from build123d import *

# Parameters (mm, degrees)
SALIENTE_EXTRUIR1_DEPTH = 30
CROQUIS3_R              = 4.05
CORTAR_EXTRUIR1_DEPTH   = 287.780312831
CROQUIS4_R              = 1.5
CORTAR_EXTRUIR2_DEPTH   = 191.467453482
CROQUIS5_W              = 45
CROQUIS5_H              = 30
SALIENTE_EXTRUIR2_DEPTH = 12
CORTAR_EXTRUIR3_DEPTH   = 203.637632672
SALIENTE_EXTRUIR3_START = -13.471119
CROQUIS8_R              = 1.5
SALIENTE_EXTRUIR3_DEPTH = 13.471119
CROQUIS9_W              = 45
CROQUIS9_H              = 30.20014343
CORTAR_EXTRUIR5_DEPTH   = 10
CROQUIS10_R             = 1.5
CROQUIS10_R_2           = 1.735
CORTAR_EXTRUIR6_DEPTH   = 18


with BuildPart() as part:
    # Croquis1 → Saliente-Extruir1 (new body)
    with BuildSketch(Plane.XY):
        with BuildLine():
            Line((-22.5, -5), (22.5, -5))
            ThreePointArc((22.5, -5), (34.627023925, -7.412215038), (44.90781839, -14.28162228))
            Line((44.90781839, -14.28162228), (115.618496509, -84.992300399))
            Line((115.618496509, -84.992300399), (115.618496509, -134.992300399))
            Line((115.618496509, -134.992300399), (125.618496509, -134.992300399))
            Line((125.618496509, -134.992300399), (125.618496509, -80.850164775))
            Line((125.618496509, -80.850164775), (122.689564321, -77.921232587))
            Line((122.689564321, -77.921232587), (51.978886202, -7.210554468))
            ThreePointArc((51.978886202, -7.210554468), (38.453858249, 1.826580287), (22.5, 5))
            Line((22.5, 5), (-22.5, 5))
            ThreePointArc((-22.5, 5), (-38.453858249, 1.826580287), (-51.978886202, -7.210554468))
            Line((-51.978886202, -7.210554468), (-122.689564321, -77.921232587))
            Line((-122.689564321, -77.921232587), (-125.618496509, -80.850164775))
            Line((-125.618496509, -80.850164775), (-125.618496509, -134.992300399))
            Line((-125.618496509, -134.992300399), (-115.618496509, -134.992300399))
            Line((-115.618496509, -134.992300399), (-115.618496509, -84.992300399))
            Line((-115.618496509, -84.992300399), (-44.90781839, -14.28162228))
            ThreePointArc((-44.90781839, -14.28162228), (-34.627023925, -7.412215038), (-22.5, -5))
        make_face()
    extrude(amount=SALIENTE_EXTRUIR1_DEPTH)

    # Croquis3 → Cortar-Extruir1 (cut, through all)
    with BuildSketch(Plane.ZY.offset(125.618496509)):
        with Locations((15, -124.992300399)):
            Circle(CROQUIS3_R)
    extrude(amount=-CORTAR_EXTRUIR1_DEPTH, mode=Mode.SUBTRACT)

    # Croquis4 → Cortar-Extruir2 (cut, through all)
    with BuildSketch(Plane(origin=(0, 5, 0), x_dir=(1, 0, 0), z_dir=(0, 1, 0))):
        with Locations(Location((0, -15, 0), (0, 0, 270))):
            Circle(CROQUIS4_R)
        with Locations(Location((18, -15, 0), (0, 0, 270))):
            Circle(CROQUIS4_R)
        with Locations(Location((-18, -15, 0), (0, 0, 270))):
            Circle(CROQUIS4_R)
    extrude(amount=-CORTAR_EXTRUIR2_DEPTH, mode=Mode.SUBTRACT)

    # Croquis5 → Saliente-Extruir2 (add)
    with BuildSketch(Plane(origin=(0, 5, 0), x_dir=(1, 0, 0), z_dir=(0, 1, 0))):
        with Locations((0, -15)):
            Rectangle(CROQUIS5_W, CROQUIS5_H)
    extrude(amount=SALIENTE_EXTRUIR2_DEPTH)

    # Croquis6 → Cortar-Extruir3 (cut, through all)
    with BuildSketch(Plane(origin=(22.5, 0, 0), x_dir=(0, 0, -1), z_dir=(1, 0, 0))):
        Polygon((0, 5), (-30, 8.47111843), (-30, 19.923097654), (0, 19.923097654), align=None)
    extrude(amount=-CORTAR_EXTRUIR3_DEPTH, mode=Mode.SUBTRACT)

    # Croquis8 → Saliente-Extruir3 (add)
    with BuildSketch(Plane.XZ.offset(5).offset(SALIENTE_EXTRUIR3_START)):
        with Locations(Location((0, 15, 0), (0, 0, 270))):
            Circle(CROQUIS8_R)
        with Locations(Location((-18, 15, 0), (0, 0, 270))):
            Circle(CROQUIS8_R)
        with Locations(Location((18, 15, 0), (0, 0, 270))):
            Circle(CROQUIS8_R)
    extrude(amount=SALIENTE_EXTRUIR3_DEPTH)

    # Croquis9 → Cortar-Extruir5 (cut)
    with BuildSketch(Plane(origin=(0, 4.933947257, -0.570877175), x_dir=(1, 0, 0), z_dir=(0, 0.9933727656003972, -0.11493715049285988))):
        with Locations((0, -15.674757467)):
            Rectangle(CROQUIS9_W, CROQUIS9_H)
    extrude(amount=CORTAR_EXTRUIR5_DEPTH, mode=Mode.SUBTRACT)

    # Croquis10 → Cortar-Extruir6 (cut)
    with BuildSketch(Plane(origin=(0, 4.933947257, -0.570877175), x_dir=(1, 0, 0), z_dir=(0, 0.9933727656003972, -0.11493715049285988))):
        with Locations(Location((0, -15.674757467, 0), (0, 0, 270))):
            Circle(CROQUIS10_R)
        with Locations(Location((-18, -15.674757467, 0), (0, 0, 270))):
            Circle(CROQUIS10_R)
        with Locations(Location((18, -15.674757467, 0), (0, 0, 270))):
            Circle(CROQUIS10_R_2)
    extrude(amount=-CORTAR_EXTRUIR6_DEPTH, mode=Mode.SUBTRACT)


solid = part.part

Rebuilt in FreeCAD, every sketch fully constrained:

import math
import FreeCAD as App
import Part
import Sketcher
Q = App.Units.Quantity

doc = App.newDocument("Part")
body = doc.addObject("PartDesign::Body", "Body")

# Sketch on XY plane
sketch1 = body.newObject("Sketcher::SketchObject", "Sketch")
sketch1.AttachmentSupport = (doc.getObject("XY_Plane"), [""])
sketch1.MapMode = "FlatFace"
sketch1.addGeometry([
    Part.LineSegment(App.Vector(-22, -5, 0), App.Vector(22, -5, 0)),  # 0
    Part.ArcOfCircle(Part.Circle(App.Vector(22, -37, 0), App.Vector(0, 0, 1), 32), math.radians(45), math.radians(90)),  # 1
    Part.LineSegment(App.Vector(45, -14, 0), App.Vector(116, -85, 0)),  # 2
    Part.LineSegment(App.Vector(116, -85, 0), App.Vector(116, -135, 0)),  # 3
    Part.LineSegment(App.Vector(116, -135, 0), App.Vector(126, -135, 0)),  # 4
    Part.LineSegment(App.Vector(126, -135, 0), App.Vector(126, -81, 0)),  # 5
    Part.LineSegment(App.Vector(126, -81, 0), App.Vector(52, -7, 0)),  # 6
    Part.ArcOfCircle(Part.Circle(App.Vector(22, -37, 0), App.Vector(0, 0, 1), 42), math.radians(45), math.radians(90)),  # 7
    Part.LineSegment(App.Vector(22, 5, 0), App.Vector(-22, 5, 0)),  # 8
    Part.ArcOfCircle(Part.Circle(App.Vector(-22, -37, 0), App.Vector(0, 0, 1), 42), math.radians(90), math.radians(135)),  # 9
    Part.LineSegment(App.Vector(-52, -7, 0), App.Vector(-126, -81, 0)),  # 10
    Part.LineSegment(App.Vector(-126, -81, 0), App.Vector(-126, -135, 0)),  # 11
    Part.LineSegment(App.Vector(-126, -135, 0), App.Vector(-116, -135, 0)),  # 12
    Part.LineSegment(App.Vector(-116, -135, 0), App.Vector(-116, -85, 0)),  # 13
    Part.LineSegment(App.Vector(-116, -85, 0), App.Vector(-45, -14, 0)),  # 14
    Part.ArcOfCircle(Part.Circle(App.Vector(-22, -37, 0), App.Vector(0, 0, 1), 32), math.radians(90), math.radians(135)),  # 15
], False)
sketch1.addConstraint([
    Sketcher.Constraint("Tangent", 0, 2, 1, 2),
    Sketcher.Constraint("Tangent", 1, 1, 2, 1),
    Sketcher.Constraint("Coincident", 2, 2, 3, 1),
    Sketcher.Constraint("Coincident", 3, 2, 4, 1),
    Sketcher.Constraint("Coincident", 4, 2, 5, 1),
    Sketcher.Constraint("Coincident", 5, 2, 6, 1),
    Sketcher.Constraint("Tangent", 6, 2, 7, 1),
    Sketcher.Constraint("Tangent", 7, 2, 8, 1),
    Sketcher.Constraint("Tangent", 8, 2, 9, 1),
    Sketcher.Constraint("Tangent", 9, 2, 10, 1),
    Sketcher.Constraint("Coincident", 10, 2, 11, 1),
    Sketcher.Constraint("Coincident", 11, 2, 12, 1),
    Sketcher.Constraint("Coincident", 12, 2, 13, 1),
    Sketcher.Constraint("Coincident", 13, 2, 14, 1),
    Sketcher.Constraint("Tangent", 14, 2, 15, 2),
    Sketcher.Constraint("Tangent", 15, 1, 0, 1),
    Sketcher.Constraint("Horizontal", 0),
    Sketcher.Constraint("Vertical", 3),
    Sketcher.Constraint("Horizontal", 4),
    Sketcher.Constraint("Vertical", 5),
    Sketcher.Constraint("Horizontal", 8),
    Sketcher.Constraint("Vertical", 11),
    Sketcher.Constraint("Horizontal", 12),
    Sketcher.Constraint("Vertical", 13),
    Sketcher.Constraint("Coincident", 7, 3, 1, 3),
    Sketcher.Constraint("Coincident", 15, 3, 9, 3),
    Sketcher.Constraint("Equal", 7, 9),
    Sketcher.Constraint("Symmetric", 0, 2, 8, 2, -1, 1),
    Sketcher.Constraint("Symmetric", 5, 2, 10, 2, -2),
    Sketcher.Constraint("Symmetric", 3, 2, 12, 2, -2),
    Sketcher.Constraint("Parallel", 2, 6),
    Sketcher.Constraint("Perpendicular", 6, 10),
    Sketcher.Constraint("Parallel", 10, 14),
    Sketcher.Constraint("DistanceX", 0, 1, 0, 2, 45.0),
    Sketcher.Constraint("DistanceX", 4, 1, 4, 2, 10.0),
    Sketcher.Constraint("DistanceY", 3, 2, 3, 1, 50.0),
    Sketcher.Constraint("Distance", 2, 100.0),
    Sketcher.Constraint("DistanceY", 0, 2, -1, 1, 5.0),
    Sketcher.Constraint("Radius", 1, 31.689441),
])
pad1 = body.newObject("PartDesign::Pad", "Pad")
pad1.Profile = sketch1
pad1.Length = 30

# Sketch on YZ plane
sketch2 = body.newObject("Sketcher::SketchObject", "Sketch001")
sketch2.AttachmentSupport = (doc.getObject("YZ_Plane"), [""])
sketch2.MapMode = "FlatFace"
sketch2.AttachmentOffset = App.Placement(App.Vector(0, 0, -125.618497), App.Rotation())
sketch2.addGeometry(Part.Circle(App.Vector(-125, 15, 0), App.Vector(0, 0, 1), 4), False)
sketch2.addConstraint([
    Sketcher.Constraint("Diameter", 0, 8.1),
    Sketcher.Constraint("DistanceY", -1, 1, 0, 3, 15.0),
    Sketcher.Constraint("DistanceX", 0, 3, -1, 1, 124.9923),
])
pocket1 = body.newObject("PartDesign::Pocket", "Pocket")
pocket1.Profile = sketch2
pocket1.Type = "ThroughAll"
pocket1.Reversed = True

# Sketch on XZ plane
sketch3 = body.newObject("Sketcher::SketchObject", "Sketch002")
sketch3.AttachmentSupport = (doc.getObject("XZ_Plane"), [""])
sketch3.MapMode = "FlatFace"
sketch3.AttachmentOffset = App.Placement(App.Vector(0, 0, -5), App.Rotation())
sketch3.addGeometry([
    Part.Circle(App.Vector(0, 15, 0), App.Vector(0, 0, 1), 1.5),
    Part.Circle(App.Vector(18, 15, 0), App.Vector(0, 0, 1), 1.5),
    Part.Circle(App.Vector(-18, 15, 0), App.Vector(0, 0, 1), 1.5),
], False)
sketch3.addConstraint([
    Sketcher.Constraint("Equal", 0, 1),
    Sketcher.Constraint("Equal", 1, 2),
    Sketcher.Constraint("Symmetric", 1, 3, 2, 3, -2),
    Sketcher.Constraint("PointOnObject", 0, 3, -2),
    Sketcher.Constraint("Horizontal", 0, 3, 1, 3),
    Sketcher.Constraint("Diameter", 0, 3.0),
    Sketcher.Constraint("DistanceY", -1, 1, 0, 3, 15.0),
    Sketcher.Constraint("DistanceX", -1, 1, 1, 3, 18.0),
])
pocket2 = body.newObject("PartDesign::Pocket", "Pocket001")
pocket2.Profile = sketch3
pocket2.Type = "ThroughAll"
pocket2.Reversed = True

# Sketch on XZ plane
sketch4 = body.newObject("Sketcher::SketchObject", "Sketch003")
sketch4.AttachmentSupport = (doc.getObject("XZ_Plane"), [""])
sketch4.MapMode = "FlatFace"
sketch4.AttachmentOffset = App.Placement(App.Vector(0, 0, -5), App.Rotation())
sketch4.addGeometry([
    Part.LineSegment(App.Vector(-22, 0, 0), App.Vector(-22, 30, 0)),
    Part.LineSegment(App.Vector(-22, 30, 0), App.Vector(22, 30, 0)),
    Part.LineSegment(App.Vector(22, 30, 0), App.Vector(22, 0, 0)),
    Part.LineSegment(App.Vector(22, 0, 0), App.Vector(-22, 0, 0)),
], False)
sketch4.addConstraint([
    Sketcher.Constraint("Coincident", 0, 2, 1, 1),
    Sketcher.Constraint("Coincident", 1, 2, 2, 1),
    Sketcher.Constraint("Coincident", 2, 2, 3, 1),
    Sketcher.Constraint("Coincident", 3, 2, 0, 1),
    Sketcher.Constraint("Vertical", 0),
    Sketcher.Constraint("Horizontal", 1),
    Sketcher.Constraint("Vertical", 2),
    Sketcher.Constraint("Horizontal", 3),
    Sketcher.Constraint("Symmetric", 2, 2, 3, 2, -1, 1),
    Sketcher.Constraint("DistanceX", 1, 1, 1, 2, 45.0),
    Sketcher.Constraint("DistanceY", 0, 1, 0, 2, 30.0),
])
pad2 = body.newObject("PartDesign::Pad", "Pad001")
pad2.Profile = sketch4
pad2.Length = 12
pad2.Reversed = True

# Sketch on YZ plane
sketch5 = body.newObject("Sketcher::SketchObject", "Sketch004")
sketch5.AttachmentSupport = (doc.getObject("YZ_Plane"), [""])
sketch5.MapMode = "FlatFace"
sketch5.AttachmentOffset = App.Placement(App.Vector(0, 0, 22.5), App.Rotation())
sketch5.addGeometry([
    Part.LineSegment(App.Vector(8, 30, 0), App.Vector(5, 0, 0)),
    Part.LineSegment(App.Vector(5, 0, 0), App.Vector(20, 0, 0)),
    Part.LineSegment(App.Vector(20, 0, 0), App.Vector(20, 30, 0)),
    Part.LineSegment(App.Vector(20, 30, 0), App.Vector(8, 30, 0)),
], False)
sketch5.addConstraint([
    Sketcher.Constraint("Coincident", 0, 2, 1, 1),
    Sketcher.Constraint("Coincident", 1, 2, 2, 1),
    Sketcher.Constraint("Coincident", 2, 2, 3, 1),
    Sketcher.Constraint("Coincident", 3, 2, 0, 1),
    Sketcher.Constraint("Horizontal", 1),
    Sketcher.Constraint("Vertical", 2),
    Sketcher.Constraint("Horizontal", 3),
    Sketcher.Constraint("PointOnObject", 0, 2, -1),
    Sketcher.Constraint("DistanceY", 2, 1, 2, 2, 30.0),
    Sketcher.Constraint("DistanceX", -1, 1, 0, 2, 5.0),
    Sketcher.Constraint("Angle", 0, Q("-96.6 deg")),
    Sketcher.Constraint("DistanceX", 3, 2, 3, 1, 11.451979),
])
pocket3 = body.newObject("PartDesign::Pocket", "Pocket002")
pocket3.Profile = sketch5
pocket3.Type = "ThroughAll"

# Sketch on XZ plane
sketch6 = body.newObject("Sketcher::SketchObject", "Sketch005")
sketch6.AttachmentSupport = (doc.getObject("XZ_Plane"), [""])
sketch6.MapMode = "FlatFace"
sketch6.AttachmentOffset = App.Placement(App.Vector(0, 0, -8.471119), App.Rotation())
sketch6.addGeometry([
    Part.Circle(App.Vector(0, 15, 0), App.Vector(0, 0, 1), 1.5),
    Part.Circle(App.Vector(-18, 15, 0), App.Vector(0, 0, 1), 1.5),
    Part.Circle(App.Vector(18, 15, 0), App.Vector(0, 0, 1), 1.5),
], False)
sketch6.addConstraint([
    Sketcher.Constraint("Equal", 0, 1),
    Sketcher.Constraint("Equal", 1, 2),
    Sketcher.Constraint("Symmetric", 1, 3, 2, 3, -2),
    Sketcher.Constraint("PointOnObject", 0, 3, -2),
    Sketcher.Constraint("Horizontal", 0, 3, 1, 3),
    Sketcher.Constraint("Diameter", 0, 3.0),
    Sketcher.Constraint("DistanceY", -1, 1, 0, 3, 15.0),
    Sketcher.Constraint("DistanceX", 1, 3, -1, 1, 18.0),
])
pad3 = body.newObject("PartDesign::Pad", "Pad002")
pad3.Profile = sketch6
pad3.Length = 13.471119

# Sketch on an angled plane
sketch7 = body.newObject("Sketcher::SketchObject", "Sketch006")
sketch7.Placement = App.Placement(App.Vector(0, 4.933947, -0.570877), App.Rotation(App.Vector(1, 0, 0), App.Vector(0, -0.11493715, -0.993372766), App.Vector(0, 0.993372766, -0.11493715), "ZXY"))
sketch7.addGeometry([
    Part.LineSegment(App.Vector(-22, -1, 0), App.Vector(-22, -31, 0)),
    Part.LineSegment(App.Vector(-22, -31, 0), App.Vector(22, -31, 0)),
    Part.LineSegment(App.Vector(22, -31, 0), App.Vector(22, -1, 0)),
    Part.LineSegment(App.Vector(22, -1, 0), App.Vector(-22, -1, 0)),
], False)
sketch7.addConstraint([
    Sketcher.Constraint("Coincident", 0, 2, 1, 1),
    Sketcher.Constraint("Coincident", 1, 2, 2, 1),
    Sketcher.Constraint("Coincident", 2, 2, 3, 1),
    Sketcher.Constraint("Coincident", 3, 2, 0, 1),
    Sketcher.Constraint("Vertical", 0),
    Sketcher.Constraint("Horizontal", 1),
    Sketcher.Constraint("Vertical", 2),
    Sketcher.Constraint("Horizontal", 3),
    Sketcher.Constraint("DistanceX", 1, 1, 1, 2, 45.0),
    Sketcher.Constraint("DistanceX", 0, 2, -1, 1, 22.5),
    Sketcher.Constraint("DistanceY", 0, 2, 0, 1, 30.200143),
    Sketcher.Constraint("DistanceY", 0, 2, -1, 1, 30.774829),
])
pocket4 = body.newObject("PartDesign::Pocket", "Pocket003")
pocket4.Profile = sketch7
pocket4.Length = 10
pocket4.Reversed = True

# Sketch on an angled plane
sketch8 = body.newObject("Sketcher::SketchObject", "Sketch007")
sketch8.Placement = App.Placement(App.Vector(0, 4.933947, -0.570877), App.Rotation(App.Vector(1, 0, 0), App.Vector(0, -0.11493715, -0.993372766), App.Vector(0, 0.993372766, -0.11493715), "ZXY"))
sketch8.addGeometry([
    Part.Circle(App.Vector(0, -15.7, 0), App.Vector(0, 0, 1), 1.5),
    Part.Circle(App.Vector(-18, -15.7, 0), App.Vector(0, 0, 1), 1.5),
    Part.Circle(App.Vector(18, -15.7, 0), App.Vector(0, 0, 1), 1.7),
], False)
sketch8.addConstraint([
    Sketcher.Constraint("Equal", 0, 1),
    Sketcher.Constraint("Symmetric", 1, 3, 2, 3, -2),
    Sketcher.Constraint("PointOnObject", 0, 3, -2),
    Sketcher.Constraint("Horizontal", 0, 3, 1, 3),
    Sketcher.Constraint("Diameter", 0, 3.0),
    Sketcher.Constraint("Diameter", 2, 3.47),
    Sketcher.Constraint("DistanceX", 1, 3, -1, 1, 18.0),
    Sketcher.Constraint("DistanceY", 0, 3, -1, 1, 15.674757),
])
pocket5 = body.newObject("PartDesign::Pocket", "Pocket004")
pocket5.Profile = sketch8
pocket5.Length = 18

doc.recompute()
